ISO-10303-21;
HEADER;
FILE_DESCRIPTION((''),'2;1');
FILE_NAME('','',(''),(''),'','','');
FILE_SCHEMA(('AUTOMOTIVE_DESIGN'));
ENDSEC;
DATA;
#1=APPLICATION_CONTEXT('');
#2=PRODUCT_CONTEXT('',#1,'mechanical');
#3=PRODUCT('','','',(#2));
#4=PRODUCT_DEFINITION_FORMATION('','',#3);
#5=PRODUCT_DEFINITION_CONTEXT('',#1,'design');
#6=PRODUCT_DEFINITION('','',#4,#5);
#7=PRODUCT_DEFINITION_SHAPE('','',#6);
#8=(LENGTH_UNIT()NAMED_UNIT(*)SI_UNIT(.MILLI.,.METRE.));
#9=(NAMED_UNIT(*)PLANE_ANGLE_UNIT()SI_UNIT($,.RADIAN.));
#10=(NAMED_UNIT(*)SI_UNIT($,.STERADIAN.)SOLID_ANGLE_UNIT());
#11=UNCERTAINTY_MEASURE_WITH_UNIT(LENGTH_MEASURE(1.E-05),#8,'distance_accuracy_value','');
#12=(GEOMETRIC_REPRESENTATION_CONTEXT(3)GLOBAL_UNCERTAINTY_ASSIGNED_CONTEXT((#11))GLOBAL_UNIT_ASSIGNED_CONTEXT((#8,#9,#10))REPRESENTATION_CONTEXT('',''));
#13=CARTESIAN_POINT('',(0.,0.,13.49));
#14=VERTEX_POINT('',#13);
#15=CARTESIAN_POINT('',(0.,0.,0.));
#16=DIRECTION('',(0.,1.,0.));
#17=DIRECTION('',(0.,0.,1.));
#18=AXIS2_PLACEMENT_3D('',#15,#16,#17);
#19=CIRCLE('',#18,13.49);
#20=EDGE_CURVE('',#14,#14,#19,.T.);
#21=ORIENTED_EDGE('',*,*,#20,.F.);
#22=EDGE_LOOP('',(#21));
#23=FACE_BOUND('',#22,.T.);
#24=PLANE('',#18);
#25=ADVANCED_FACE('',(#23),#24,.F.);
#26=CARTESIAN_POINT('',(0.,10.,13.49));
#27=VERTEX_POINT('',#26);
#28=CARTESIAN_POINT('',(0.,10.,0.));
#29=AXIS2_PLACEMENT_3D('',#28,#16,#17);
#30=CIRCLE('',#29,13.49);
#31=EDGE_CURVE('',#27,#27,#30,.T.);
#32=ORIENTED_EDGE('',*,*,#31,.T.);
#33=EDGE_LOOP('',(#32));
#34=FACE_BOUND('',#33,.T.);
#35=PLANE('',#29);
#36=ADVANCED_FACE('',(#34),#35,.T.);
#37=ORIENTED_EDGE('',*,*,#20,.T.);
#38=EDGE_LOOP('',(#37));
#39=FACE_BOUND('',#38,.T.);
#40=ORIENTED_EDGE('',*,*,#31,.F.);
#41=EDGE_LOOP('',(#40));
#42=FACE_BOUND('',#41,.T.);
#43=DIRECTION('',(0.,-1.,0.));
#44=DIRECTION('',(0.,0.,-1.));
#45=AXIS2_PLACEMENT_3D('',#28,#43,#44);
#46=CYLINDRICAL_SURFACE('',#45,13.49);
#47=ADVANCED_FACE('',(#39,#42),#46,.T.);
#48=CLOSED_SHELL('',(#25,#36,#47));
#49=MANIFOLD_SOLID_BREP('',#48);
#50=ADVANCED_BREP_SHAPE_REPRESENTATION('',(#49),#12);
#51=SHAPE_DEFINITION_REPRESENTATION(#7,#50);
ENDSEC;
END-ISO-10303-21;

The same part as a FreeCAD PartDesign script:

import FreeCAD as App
import Part
import Sketcher
from FreeCAD import Vector

doc = App.newDocument("Part")
body = doc.addObject("PartDesign::Body", "Body")

# Sketch on XZ plane
sketch1 = body.newObject("Sketcher::SketchObject", "Sketch")
sketch1.AttachmentSupport = (doc.getObject("XZ_Plane"), [""])
sketch1.MapMode = "FlatFace"
sketch1.addGeometry(Part.Circle(Vector(0, 0, 0), Vector(0, 0, 1), 13), False)
sketch1.addConstraint(Sketcher.Constraint("Coincident", 0, 3, -1, 1))
sketch1.addConstraint(Sketcher.Constraint("Diameter", 0, 26.98))
pad1 = body.newObject("PartDesign::Pad", "Pad")
pad1.Profile = sketch1
pad1.Length = 10
pad1.Reversed = True

doc.recompute()
